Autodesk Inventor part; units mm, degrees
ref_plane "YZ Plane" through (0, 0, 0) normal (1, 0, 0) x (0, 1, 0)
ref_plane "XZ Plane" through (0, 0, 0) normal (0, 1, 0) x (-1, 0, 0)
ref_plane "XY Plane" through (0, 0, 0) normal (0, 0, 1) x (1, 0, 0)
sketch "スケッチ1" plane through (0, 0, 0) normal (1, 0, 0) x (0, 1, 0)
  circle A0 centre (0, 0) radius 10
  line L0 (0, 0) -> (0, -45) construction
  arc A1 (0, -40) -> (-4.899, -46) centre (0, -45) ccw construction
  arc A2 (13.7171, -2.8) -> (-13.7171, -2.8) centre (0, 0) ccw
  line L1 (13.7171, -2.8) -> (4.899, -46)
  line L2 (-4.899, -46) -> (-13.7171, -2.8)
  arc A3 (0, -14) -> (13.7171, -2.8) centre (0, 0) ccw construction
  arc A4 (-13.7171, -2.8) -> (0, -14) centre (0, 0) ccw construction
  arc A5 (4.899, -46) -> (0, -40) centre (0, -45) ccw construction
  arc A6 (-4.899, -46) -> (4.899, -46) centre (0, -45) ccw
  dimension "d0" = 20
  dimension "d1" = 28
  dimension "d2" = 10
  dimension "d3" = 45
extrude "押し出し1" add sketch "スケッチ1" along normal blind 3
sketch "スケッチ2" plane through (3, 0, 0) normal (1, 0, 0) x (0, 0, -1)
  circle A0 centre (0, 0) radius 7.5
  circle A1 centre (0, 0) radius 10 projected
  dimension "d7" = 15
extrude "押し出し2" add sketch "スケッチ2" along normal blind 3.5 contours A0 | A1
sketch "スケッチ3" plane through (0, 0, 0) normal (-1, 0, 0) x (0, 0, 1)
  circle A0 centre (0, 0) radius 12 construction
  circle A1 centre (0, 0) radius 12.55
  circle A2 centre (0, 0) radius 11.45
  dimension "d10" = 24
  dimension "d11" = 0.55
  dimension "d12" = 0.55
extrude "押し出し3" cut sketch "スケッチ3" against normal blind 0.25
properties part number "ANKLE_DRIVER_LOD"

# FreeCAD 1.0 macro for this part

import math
import FreeCAD as App
import Part
import Sketcher

V = App.Vector
Q = App.Units.Quantity

doc = App.newDocument("Part")
params = doc.addObject("Spreadsheet::Sheet", "Params")
for row, (alias, value) in enumerate([
    ("sketch1_diameter", "20 mm"),
    ("sketch1_radius", "14 mm"),
    ("sketch1_radius2", "5 mm"),
    ("pad1_length", "3 mm"),
    ("sketch2_diameter", "20 mm"),
    ("pad2_length", "3.5 mm"),
    ("sketch3_diameter", "25.1 mm"),
    ("sketch3_diameter2", "22.9 mm"),
    ("pocket1_length", "0.25 mm"),
], start=1):
    params.set(f"A{row}", alias)
    params.set(f"B{row}", "=" + value)
    params.setAlias(f"B{row}", alias)

body = doc.addObject("PartDesign::Body", "Body")
body.AllowCompound = True

# Sketch on YZ plane
sketch1 = body.newObject("Sketcher::SketchObject", "Sketch")
sketch1.AttachmentSupport = (doc.getObject("YZ_Plane"), [""])
sketch1.MapMode = "FlatFace"
sketch1.addGeometry(Part.LineSegment(V(5, -46, 0), V(14, -3, 0)), False)
sketch1.addGeometry(Part.ArcOfCircle(Part.Circle(V(0, 0, 0), V(0, 0, 1), 14), math.radians(-12), math.radians(192)), False)
sketch1.addGeometry(Part.LineSegment(V(-14, -3, 0), V(-5, -46, 0)), False)
sketch1.addGeometry(Part.ArcOfCircle(Part.Circle(V(0, -45, 0), V(0, 0, 1), 5), math.radians(-168), math.radians(-12)), False)
sketch1.addGeometry(Part.Circle(V(0, 0, 0), V(0, 0, 1), 10), False)
sketch1.addConstraint(Sketcher.Constraint("Tangent", 0, 2, 1, 1))
sketch1.addConstraint(Sketcher.Constraint("Tangent", 1, 2, 2, 1))
sketch1.addConstraint(Sketcher.Constraint("Tangent", 2, 2, 3, 1))
sketch1.addConstraint(Sketcher.Constraint("Tangent", 3, 2, 0, 1))
sketch1.addConstraint(Sketcher.Constraint("Coincident", 1, 3, -1, 1))
sketch1.addConstraint(Sketcher.Constraint("Coincident", 4, 3, -1, 1))
sketch1.addConstraint(Sketcher.Constraint("PointOnObject", 3, 3, -2))
sketch1.addConstraint(Sketcher.Constraint("Diameter", 4, Q("20 mm")))
sketch1.addConstraint(Sketcher.Constraint("Radius", 1, Q("14 mm")))
sketch1.addConstraint(Sketcher.Constraint("Radius", 3, Q("5 mm")))
sketch1.addConstraint(Sketcher.Constraint("DistanceY", 3, 3, -1, 1, Q("45 mm")))
sketch1.setExpression("Constraints[7]", "Params.sketch1_diameter")
sketch1.setExpression("Constraints[8]", "Params.sketch1_radius")
sketch1.setExpression("Constraints[9]", "Params.sketch1_radius2")
pad1 = body.newObject("PartDesign::Pad", "Pad")
pad1.Profile = sketch1
pad1.setExpression("Length", "Params.pad1_length")

# Sketch on YZ plane
sketch2 = body.newObject("Sketcher::SketchObject", "Sketch001")
sketch2.AttachmentSupport = (doc.getObject("YZ_Plane"), [""])
sketch2.MapMode = "FlatFace"
sketch2.AttachmentOffset = App.Placement(V(0, 0, 3), App.Rotation())
sketch2.addGeometry(Part.Circle(V(0, 0, 0), V(0, 0, 1), 10), False)
sketch2.addConstraint(Sketcher.Constraint("Coincident", 0, 3, -1, 1))
sketch2.addConstraint(Sketcher.Constraint("Diameter", 0, Q("20 mm")))
sketch2.setExpression("Constraints[1]", "Params.sketch2_diameter")
pad2 = body.newObject("PartDesign::Pad", "Pad001")
pad2.Profile = sketch2
pad2.setExpression("Length", "Params.pad2_length")

# Sketch on YZ plane
sketch3 = body.newObject("Sketcher::SketchObject", "Sketch002")
sketch3.AttachmentSupport = (doc.getObject("YZ_Plane"), [""])
sketch3.MapMode = "FlatFace"
sketch3.addGeometry(Part.Circle(V(0, 0, 0), V(0, 0, 1), 13), False)
sketch3.addGeometry(Part.Circle(V(0, 0, 0), V(0, 0, 1), 11), False)
sketch3.addConstraint(Sketcher.Constraint("Coincident", 0, 3, -1, 1))
sketch3.addConstraint(Sketcher.Constraint("Coincident", 1, 3, -1, 1))
sketch3.addConstraint(Sketcher.Constraint("Diameter", 0, Q("25.1 mm")))
sketch3.addConstraint(Sketcher.Constraint("Diameter", 1, Q("22.9 mm")))
sketch3.setExpression("Constraints[2]", "Params.sketch3_diameter")
sketch3.setExpression("Constraints[3]", "Params.sketch3_diameter2")
pocket1 = body.newObject("PartDesign::Pocket", "Pocket")
pocket1.Profile = sketch3
pocket1.setExpression("Length", "Params.pocket1_length")
pocket1.Reversed = True

doc.recompute()
